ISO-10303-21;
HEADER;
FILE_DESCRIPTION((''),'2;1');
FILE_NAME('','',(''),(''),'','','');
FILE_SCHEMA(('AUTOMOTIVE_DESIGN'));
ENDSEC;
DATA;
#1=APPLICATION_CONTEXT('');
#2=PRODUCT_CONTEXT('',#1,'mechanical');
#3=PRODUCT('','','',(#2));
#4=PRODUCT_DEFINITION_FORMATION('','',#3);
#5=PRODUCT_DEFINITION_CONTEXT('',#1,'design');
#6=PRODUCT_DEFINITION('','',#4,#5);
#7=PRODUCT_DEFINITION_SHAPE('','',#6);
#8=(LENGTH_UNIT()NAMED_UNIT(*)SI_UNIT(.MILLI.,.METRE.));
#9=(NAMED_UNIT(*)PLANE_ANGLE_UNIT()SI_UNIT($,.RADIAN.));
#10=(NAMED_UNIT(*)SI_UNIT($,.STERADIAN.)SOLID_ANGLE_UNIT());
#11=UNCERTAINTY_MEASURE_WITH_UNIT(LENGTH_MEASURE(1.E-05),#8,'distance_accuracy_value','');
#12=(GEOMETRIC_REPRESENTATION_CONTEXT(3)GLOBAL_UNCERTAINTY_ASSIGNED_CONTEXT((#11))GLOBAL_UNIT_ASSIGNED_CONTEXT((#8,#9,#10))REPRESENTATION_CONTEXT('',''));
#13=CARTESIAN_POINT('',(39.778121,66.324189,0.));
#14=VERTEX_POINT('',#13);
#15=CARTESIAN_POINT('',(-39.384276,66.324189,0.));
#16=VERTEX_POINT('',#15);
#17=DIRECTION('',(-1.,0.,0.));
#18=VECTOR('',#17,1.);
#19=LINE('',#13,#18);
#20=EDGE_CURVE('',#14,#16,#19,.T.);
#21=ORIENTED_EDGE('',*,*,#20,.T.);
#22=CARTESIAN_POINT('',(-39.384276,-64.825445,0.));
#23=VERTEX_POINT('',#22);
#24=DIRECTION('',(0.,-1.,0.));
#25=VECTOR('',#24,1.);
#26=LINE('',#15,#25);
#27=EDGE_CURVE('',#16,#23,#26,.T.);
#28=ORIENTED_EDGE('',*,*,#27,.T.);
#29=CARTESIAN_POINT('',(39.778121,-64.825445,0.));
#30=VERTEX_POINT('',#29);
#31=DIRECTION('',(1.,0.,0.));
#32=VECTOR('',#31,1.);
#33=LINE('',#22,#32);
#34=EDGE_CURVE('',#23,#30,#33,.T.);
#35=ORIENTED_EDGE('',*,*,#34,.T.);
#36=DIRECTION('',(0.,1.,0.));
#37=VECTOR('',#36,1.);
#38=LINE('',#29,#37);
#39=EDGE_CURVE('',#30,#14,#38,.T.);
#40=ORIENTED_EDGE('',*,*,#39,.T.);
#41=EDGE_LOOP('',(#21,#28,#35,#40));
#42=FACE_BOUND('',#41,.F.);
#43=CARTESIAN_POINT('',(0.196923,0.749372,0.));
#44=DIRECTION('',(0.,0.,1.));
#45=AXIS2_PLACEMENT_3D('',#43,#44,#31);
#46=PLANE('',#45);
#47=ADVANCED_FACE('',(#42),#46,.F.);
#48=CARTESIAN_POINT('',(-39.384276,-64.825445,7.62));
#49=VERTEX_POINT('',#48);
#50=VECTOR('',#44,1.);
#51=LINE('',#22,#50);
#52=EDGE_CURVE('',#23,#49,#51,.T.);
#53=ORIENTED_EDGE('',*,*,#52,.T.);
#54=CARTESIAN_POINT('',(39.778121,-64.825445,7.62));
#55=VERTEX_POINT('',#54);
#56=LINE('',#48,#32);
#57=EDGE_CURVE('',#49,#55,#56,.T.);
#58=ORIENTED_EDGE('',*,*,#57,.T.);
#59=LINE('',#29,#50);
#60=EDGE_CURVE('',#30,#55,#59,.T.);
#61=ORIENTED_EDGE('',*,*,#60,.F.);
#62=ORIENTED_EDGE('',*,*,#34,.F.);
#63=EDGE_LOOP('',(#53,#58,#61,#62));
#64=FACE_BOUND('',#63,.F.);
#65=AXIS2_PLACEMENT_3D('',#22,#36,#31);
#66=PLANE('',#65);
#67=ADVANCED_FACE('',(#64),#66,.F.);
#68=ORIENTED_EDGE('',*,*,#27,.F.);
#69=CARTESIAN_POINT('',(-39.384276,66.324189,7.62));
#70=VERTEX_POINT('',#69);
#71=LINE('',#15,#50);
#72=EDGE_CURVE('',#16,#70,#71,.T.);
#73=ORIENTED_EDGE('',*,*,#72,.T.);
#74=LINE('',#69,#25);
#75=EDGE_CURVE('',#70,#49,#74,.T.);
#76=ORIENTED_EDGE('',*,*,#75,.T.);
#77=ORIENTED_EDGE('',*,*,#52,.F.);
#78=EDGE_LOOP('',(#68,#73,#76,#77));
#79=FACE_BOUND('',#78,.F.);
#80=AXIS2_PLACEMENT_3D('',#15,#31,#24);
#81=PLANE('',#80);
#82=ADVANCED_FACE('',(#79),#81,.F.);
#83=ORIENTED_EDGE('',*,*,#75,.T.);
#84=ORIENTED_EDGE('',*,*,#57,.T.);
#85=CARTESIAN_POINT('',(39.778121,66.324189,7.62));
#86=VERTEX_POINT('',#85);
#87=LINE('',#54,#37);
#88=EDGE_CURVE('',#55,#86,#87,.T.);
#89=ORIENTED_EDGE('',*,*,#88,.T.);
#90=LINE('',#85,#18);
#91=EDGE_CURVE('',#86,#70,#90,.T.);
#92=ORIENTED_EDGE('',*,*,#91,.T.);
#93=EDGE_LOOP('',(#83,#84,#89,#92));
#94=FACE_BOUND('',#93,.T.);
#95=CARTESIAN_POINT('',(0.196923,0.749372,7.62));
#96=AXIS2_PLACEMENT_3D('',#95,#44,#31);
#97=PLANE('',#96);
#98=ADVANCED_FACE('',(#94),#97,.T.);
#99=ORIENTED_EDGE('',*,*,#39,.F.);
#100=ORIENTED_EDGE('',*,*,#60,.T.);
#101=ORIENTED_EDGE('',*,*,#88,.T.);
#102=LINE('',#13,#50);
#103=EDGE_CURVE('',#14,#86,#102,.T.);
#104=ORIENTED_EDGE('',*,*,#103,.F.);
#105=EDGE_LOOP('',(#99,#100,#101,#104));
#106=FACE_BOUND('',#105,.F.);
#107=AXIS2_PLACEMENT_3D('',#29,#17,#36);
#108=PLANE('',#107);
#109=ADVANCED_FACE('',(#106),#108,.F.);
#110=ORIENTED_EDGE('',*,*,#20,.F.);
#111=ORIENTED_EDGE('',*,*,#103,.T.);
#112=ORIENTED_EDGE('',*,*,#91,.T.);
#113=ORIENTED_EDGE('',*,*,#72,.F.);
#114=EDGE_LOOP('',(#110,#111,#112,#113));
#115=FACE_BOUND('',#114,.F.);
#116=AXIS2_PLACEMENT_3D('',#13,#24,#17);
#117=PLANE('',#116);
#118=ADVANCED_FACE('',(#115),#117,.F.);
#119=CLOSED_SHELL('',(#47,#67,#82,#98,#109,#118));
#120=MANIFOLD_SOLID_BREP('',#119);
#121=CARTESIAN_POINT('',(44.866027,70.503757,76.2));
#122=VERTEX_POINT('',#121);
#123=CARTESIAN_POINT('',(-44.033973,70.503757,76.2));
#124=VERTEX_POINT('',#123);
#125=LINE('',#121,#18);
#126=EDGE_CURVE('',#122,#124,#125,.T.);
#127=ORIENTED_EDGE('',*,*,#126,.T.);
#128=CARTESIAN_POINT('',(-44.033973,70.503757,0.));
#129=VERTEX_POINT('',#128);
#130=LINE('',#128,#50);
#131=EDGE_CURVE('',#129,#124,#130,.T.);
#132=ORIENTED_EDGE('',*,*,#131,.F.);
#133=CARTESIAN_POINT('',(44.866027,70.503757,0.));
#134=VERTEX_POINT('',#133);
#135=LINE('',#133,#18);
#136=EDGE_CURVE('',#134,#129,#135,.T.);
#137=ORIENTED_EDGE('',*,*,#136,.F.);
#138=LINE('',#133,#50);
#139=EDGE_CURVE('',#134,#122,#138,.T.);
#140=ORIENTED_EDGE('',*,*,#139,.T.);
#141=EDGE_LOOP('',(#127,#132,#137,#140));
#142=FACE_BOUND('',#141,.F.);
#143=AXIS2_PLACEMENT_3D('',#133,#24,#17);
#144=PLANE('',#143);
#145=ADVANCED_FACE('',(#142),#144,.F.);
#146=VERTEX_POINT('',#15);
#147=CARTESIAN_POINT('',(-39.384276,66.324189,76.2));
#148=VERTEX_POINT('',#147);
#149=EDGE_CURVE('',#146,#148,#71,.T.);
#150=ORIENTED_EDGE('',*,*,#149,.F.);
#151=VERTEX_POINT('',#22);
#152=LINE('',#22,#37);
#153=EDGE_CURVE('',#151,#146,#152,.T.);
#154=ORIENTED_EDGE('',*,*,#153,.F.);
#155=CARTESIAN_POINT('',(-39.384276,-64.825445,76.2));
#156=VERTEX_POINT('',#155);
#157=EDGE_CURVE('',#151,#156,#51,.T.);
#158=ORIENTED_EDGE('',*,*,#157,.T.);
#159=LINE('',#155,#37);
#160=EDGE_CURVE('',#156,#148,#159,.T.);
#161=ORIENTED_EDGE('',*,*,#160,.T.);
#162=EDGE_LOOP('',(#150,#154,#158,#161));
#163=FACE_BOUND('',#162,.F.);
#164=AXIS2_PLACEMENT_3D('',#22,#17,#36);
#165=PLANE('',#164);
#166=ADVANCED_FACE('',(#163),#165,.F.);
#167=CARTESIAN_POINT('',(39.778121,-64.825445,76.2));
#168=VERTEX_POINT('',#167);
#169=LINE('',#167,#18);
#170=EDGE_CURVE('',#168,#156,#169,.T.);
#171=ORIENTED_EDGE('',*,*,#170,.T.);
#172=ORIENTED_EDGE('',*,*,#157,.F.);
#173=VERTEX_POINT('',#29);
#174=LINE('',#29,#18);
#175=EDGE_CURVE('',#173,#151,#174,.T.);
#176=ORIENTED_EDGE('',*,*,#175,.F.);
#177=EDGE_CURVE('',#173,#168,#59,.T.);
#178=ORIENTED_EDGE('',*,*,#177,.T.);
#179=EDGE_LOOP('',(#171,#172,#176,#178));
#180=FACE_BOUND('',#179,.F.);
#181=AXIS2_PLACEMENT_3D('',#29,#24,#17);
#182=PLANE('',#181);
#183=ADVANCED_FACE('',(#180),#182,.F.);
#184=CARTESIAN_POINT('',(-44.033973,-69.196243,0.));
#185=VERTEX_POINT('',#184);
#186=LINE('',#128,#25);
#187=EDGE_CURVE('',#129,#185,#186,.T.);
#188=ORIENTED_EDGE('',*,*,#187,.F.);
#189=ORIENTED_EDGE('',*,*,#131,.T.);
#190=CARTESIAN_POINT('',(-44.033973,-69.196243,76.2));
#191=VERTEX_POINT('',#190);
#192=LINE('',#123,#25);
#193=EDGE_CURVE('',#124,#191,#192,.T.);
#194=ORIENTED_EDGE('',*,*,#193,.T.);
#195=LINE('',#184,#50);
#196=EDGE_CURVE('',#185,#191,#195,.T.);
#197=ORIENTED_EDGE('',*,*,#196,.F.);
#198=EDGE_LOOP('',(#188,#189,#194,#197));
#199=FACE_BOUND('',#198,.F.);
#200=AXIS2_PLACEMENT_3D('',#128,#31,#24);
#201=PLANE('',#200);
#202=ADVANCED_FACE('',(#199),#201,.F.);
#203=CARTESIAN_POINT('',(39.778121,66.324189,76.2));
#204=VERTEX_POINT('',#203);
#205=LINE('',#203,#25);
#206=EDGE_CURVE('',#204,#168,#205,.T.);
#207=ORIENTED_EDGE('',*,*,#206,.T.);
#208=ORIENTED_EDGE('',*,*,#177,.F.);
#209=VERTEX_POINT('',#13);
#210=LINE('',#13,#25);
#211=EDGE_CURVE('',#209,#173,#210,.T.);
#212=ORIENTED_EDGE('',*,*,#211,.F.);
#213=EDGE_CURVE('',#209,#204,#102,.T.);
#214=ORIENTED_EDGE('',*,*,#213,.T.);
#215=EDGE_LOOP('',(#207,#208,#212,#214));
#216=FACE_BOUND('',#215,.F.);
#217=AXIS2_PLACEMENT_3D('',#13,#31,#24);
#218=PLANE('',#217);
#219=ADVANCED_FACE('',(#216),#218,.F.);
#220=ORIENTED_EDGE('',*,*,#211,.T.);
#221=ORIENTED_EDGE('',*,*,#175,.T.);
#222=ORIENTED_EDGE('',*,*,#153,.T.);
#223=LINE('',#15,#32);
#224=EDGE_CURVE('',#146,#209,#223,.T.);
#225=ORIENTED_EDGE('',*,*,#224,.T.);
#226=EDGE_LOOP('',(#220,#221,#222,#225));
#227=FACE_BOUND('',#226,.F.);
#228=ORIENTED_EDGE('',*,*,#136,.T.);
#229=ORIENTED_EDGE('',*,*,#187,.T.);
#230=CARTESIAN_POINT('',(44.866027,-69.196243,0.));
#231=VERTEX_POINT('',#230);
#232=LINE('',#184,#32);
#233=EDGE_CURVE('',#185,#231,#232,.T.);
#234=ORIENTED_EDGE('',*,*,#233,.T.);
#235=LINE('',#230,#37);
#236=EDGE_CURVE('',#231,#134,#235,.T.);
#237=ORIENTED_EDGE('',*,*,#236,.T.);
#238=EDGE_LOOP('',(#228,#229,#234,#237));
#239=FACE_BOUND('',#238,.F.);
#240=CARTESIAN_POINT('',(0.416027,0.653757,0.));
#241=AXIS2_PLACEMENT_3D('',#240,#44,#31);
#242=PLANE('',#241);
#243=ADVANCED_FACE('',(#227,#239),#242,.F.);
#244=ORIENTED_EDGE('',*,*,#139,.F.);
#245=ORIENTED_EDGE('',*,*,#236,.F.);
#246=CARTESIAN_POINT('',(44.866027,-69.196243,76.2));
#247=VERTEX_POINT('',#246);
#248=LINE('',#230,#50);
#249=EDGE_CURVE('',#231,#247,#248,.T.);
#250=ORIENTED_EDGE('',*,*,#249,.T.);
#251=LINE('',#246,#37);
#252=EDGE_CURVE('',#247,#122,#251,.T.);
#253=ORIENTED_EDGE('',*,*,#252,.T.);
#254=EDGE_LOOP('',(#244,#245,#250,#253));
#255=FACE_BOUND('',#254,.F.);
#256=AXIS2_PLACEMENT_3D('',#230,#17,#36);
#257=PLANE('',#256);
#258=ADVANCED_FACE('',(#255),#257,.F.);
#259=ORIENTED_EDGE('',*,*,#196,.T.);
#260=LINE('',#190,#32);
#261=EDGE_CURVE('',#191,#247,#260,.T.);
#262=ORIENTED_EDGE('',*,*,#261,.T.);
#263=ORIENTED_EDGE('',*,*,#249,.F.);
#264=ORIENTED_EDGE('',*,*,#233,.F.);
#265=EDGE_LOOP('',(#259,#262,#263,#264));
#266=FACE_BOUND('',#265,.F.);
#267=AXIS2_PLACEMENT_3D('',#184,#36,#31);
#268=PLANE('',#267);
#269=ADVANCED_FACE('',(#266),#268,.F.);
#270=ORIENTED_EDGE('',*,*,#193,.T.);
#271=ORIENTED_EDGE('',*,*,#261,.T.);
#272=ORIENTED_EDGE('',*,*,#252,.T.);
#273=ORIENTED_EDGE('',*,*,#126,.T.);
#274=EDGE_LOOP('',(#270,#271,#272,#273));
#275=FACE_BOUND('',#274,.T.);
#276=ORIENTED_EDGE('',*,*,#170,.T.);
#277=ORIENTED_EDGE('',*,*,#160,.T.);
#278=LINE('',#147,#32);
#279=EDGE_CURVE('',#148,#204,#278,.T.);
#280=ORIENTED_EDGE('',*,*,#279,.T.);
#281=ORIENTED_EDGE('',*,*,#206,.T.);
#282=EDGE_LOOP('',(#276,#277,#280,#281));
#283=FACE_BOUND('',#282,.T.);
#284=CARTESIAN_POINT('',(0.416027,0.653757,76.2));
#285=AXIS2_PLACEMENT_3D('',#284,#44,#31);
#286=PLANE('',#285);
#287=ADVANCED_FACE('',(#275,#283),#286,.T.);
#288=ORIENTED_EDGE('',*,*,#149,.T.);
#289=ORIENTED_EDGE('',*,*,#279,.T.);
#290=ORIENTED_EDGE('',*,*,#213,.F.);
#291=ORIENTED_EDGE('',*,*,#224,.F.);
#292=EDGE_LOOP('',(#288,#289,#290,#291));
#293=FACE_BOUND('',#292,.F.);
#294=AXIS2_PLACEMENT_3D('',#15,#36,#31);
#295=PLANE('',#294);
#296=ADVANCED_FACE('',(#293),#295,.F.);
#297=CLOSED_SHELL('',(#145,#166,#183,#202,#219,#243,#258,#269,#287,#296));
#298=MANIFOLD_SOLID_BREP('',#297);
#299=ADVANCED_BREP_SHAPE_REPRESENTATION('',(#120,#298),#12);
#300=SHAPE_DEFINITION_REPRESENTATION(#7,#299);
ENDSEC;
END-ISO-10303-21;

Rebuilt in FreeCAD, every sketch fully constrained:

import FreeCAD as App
import Part
import Sketcher
from FreeCAD import Vector
Q = App.Units.Quantity


def add_polygon(sketch, points):
    """Adds a closed chain of lines whose ends are joined by coincident constraints."""
    first, n = sketch.GeometryCount, len(points)
    for a, b in zip(points, points[1:] + points[:1]):
        sketch.addGeometry(Part.LineSegment(App.Vector(*a, 0), App.Vector(*b, 0)), False)
    for i in range(n):
        sketch.addConstraint(Sketcher.Constraint("Coincident", first + i, 2, first + (i + 1) % n, 1))

doc = App.newDocument("Part")
body = doc.addObject("PartDesign::Body", "Body")

# Sketch on XY plane
sketch1 = body.newObject("Sketcher::SketchObject", "Sketch")
sketch1.AttachmentSupport = (doc.getObject("XY_Plane"), [""])
sketch1.MapMode = "FlatFace"
add_polygon(sketch1, [(40, 66), (-39, 66), (-39, -65), (40, -65)])  # lines 0-3
sketch1.addConstraint(Sketcher.Constraint("Horizontal", 0))
sketch1.addConstraint(Sketcher.Constraint("Vertical", 1))
sketch1.addConstraint(Sketcher.Constraint("Horizontal", 2))
sketch1.addConstraint(Sketcher.Constraint("Vertical", 3))
sketch1.addConstraint(Sketcher.Constraint("DistanceX", 0, 2, 0, 1, 79.162397))
sketch1.addConstraint(Sketcher.Constraint("DistanceY", 1, 2, 1, 1, 131.149634))
sketch1.addConstraint(Sketcher.Constraint("DistanceY", -1, 1, 0, 2, 66.324189))
sketch1.addConstraint(Sketcher.Constraint("DistanceX", -1, 1, 2, 2, 39.778121))
pad1 = body.newObject("PartDesign::Pad", "Pad")
pad1.Profile = sketch1
pad1.Length = Q("0.3 in")
body2 = doc.addObject("PartDesign::Body", "Body001")

# Sketch on XY plane
sketch2 = body2.newObject("Sketcher::SketchObject", "Sketch001")
sketch2.AttachmentSupport = (doc.getObject("XY_Plane001"), [""])
sketch2.MapMode = "FlatFace"
add_polygon(sketch2, [(45, 71), (-44, 71), (-44, -69), (45, -69)])  # lines 0-3
add_polygon(sketch2, [(-39, -65), (-39, 66), (40, 66), (40, -65)])  # lines 4-7
sketch2.addConstraint(Sketcher.Constraint("Horizontal", 0))
sketch2.addConstraint(Sketcher.Constraint("Vertical", 1))
sketch2.addConstraint(Sketcher.Constraint("Horizontal", 2))
sketch2.addConstraint(Sketcher.Constraint("Vertical", 3))
sketch2.addConstraint(Sketcher.Constraint("Vertical", 4))
sketch2.addConstraint(Sketcher.Constraint("Horizontal", 5))
sketch2.addConstraint(Sketcher.Constraint("Vertical", 6))
sketch2.addConstraint(Sketcher.Constraint("Horizontal", 7))
sketch2.addConstraint(Sketcher.Constraint("DistanceX", 0, 2, 0, 1, Q("3.5 in")))
sketch2.addConstraint(Sketcher.Constraint("DistanceY", 1, 2, 1, 1, Q("5.5 in")))
sketch2.addConstraint(Sketcher.Constraint("DistanceX", 5, 1, 5, 2, 79.162397))
sketch2.addConstraint(Sketcher.Constraint("DistanceY", 4, 1, 4, 2, 131.149634))
sketch2.addConstraint(Sketcher.Constraint("DistanceY", -1, 1, 4, 2, 66.324189))
sketch2.addConstraint(Sketcher.Constraint("DistanceX", -1, 1, 5, 2, 39.778121))
sketch2.addConstraint(Sketcher.Constraint("DistanceY", 1, 2, 4, 2, 135.520432))
sketch2.addConstraint(Sketcher.Constraint("DistanceX", 0, 2, -1, 1, 44.033973))
pad2 = body2.newObject("PartDesign::Pad", "Pad001")
pad2.Profile = sketch2
pad2.Length = Q("3 in")

doc.recompute()
